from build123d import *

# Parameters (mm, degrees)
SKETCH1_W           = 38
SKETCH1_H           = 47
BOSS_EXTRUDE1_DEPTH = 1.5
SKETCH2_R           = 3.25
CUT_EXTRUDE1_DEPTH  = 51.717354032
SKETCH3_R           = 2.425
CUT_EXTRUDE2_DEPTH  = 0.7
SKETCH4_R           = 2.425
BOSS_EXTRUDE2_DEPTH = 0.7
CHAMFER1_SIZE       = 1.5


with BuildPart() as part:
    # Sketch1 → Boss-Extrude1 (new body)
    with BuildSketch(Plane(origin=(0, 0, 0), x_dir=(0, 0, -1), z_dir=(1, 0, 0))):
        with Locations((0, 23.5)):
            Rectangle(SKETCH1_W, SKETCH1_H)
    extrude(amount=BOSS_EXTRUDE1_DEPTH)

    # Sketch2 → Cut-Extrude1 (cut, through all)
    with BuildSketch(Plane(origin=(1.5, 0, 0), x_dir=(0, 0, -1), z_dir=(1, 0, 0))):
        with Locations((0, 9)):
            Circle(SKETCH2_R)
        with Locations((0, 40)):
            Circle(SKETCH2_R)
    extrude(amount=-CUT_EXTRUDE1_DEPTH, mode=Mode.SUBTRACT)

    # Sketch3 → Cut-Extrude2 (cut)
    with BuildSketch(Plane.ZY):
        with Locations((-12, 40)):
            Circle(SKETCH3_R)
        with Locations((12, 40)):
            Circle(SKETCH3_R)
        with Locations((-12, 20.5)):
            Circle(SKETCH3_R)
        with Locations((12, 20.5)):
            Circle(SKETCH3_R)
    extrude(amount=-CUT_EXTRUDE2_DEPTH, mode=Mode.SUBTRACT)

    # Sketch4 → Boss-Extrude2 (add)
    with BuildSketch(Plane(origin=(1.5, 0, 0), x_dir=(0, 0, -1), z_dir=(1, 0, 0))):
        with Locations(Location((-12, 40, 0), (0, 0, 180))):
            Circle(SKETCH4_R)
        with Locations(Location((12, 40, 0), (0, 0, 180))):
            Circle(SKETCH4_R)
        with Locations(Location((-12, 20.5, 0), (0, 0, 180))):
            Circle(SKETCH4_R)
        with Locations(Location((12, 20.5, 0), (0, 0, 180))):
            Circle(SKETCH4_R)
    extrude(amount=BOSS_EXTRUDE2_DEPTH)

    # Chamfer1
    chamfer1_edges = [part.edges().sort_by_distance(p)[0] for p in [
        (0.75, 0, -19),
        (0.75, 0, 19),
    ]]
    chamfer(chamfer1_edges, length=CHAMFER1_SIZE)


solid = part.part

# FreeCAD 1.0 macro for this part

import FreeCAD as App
import Part
import Sketcher
from FreeCAD import Vector


def edges_at(feature, points):
    """Names of the edges that pass closest to the given points."""
    edges = feature.Shape.Edges
    near = lambda p: min(range(len(edges)), key=lambda i: edges[i].distToShape(Part.Vertex(*p))[0])
    return sorted({f"Edge{near(p) + 1}" for p in points})


def add_polygon(sketch, points):
    """Adds a closed chain of lines whose ends are joined by coincident constraints."""
    first, n = sketch.GeometryCount, len(points)
    for a, b in zip(points, points[1:] + points[:1]):
        sketch.addGeometry(Part.LineSegment(App.Vector(*a, 0), App.Vector(*b, 0)), False)
    for i in range(n):
        sketch.addConstraint(Sketcher.Constraint("Coincident", first + i, 2, first + (i + 1) % n, 1))

doc = App.newDocument("Part")
body = doc.addObject("PartDesign::Body", "Body")

# Sketch on YZ plane
sketch1 = doc.addObject("Sketcher::SketchObject", "Sketch")
body.addObject(sketch1)
sketch1.AttachmentSupport = (doc.YZ_Plane, [""])
sketch1.MapMode = "FlatFace"
add_polygon(sketch1, [(47, 19), (0, 19), (0, -19), (47, -19)])  # lines 0-3
sketch1.addConstraint([
    Sketcher.Constraint("Horizontal", 0),
    Sketcher.Constraint("Vertical", 1),
    Sketcher.Constraint("Horizontal", 2),
    Sketcher.Constraint("Vertical", 3),
    Sketcher.Constraint("Symmetric", 0, 2, 1, 2, -1, 1),
    Sketcher.Constraint("DistanceX", 0, 2, 0, 1, 47.0),
    Sketcher.Constraint("DistanceY", 1, 2, 1, 1, 38.0),
])
pad1 = doc.addObject("PartDesign::Pad", "Pad")
body.addObject(pad1)
pad1.Profile = sketch1
pad1.Length = 1.5

# Sketch on YZ plane
sketch2 = doc.addObject("Sketcher::SketchObject", "Sketch001")
body.addObject(sketch2)
sketch2.AttachmentSupport = (doc.YZ_Plane, [""])
sketch2.MapMode = "FlatFace"
sketch2.AttachmentOffset = App.Placement(Vector(0, 0, 1.5), App.Rotation())
sketch2.addGeometry([
    Part.Circle(Vector(9, 0, 0), Vector(0, 0, 1), 3.2),
    Part.Circle(Vector(40, 0, 0), Vector(0, 0, 1), 3.2),
], False)
sketch2.addConstraint([
    Sketcher.Constraint("Equal", 0, 1),
    Sketcher.Constraint("PointOnObject", 0, 3, -1),
    Sketcher.Constraint("PointOnObject", 1, 3, -1),
    Sketcher.Constraint("Diameter", 0, 6.5),
    Sketcher.Constraint("DistanceX", -1, 1, 0, 3, 9.0),
    Sketcher.Constraint("DistanceX", -1, 1, 1, 3, 40.0),
])
pocket1 = doc.addObject("PartDesign::Pocket", "Pocket")
body.addObject(pocket1)
pocket1.Profile = sketch2
pocket1.Type = "ThroughAll"

# Sketch on YZ plane
sketch3 = doc.addObject("Sketcher::SketchObject", "Sketch002")
body.addObject(sketch3)
sketch3.AttachmentSupport = (doc.YZ_Plane, [""])
sketch3.MapMode = "FlatFace"
sketch3.addGeometry([
    Part.Circle(Vector(40, -12, 0), Vector(0, 0, 1), 2.4),
    Part.Circle(Vector(40, 12, 0), Vector(0, 0, 1), 2.4),
    Part.Circle(Vector(20.5, -12, 0), Vector(0, 0, 1), 2.4),
    Part.Circle(Vector(20.5, 12, 0), Vector(0, 0, 1), 2.4),
], False)
sketch3.addConstraint([
    Sketcher.Constraint("Equal", 0, 1),
    Sketcher.Constraint("Equal", 1, 2),
    Sketcher.Constraint("Equal", 2, 3),
    Sketcher.Constraint("Symmetric", 0, 3, 1, 3, -1),
    Sketcher.Constraint("Symmetric", 2, 3, 3, 3, -1),
    Sketcher.Constraint("Horizontal", 0, 3, 2, 3),
    Sketcher.Constraint("Diameter", 0, 4.85),
    Sketcher.Constraint("DistanceX", -1, 1, 0, 3, 40.0),
    Sketcher.Constraint("DistanceY", 0, 3, -1, 1, 12.0),
    Sketcher.Constraint("DistanceX", -1, 1, 2, 3, 20.5),
])
pocket2 = doc.addObject("PartDesign::Pocket", "Pocket001")
body.addObject(pocket2)
pocket2.Profile = sketch3
pocket2.Length = 0.7
pocket2.Reversed = True

# Sketch on YZ plane
sketch4 = doc.addObject("Sketcher::SketchObject", "Sketch003")
body.addObject(sketch4)
sketch4.AttachmentSupport = (doc.YZ_Plane, [""])
sketch4.MapMode = "FlatFace"
sketch4.AttachmentOffset = App.Placement(Vector(0, 0, 1.5), App.Rotation())
sketch4.addGeometry([
    Part.Circle(Vector(40, 12, 0), Vector(0, 0, 1), 2.4),
    Part.Circle(Vector(40, -12, 0), Vector(0, 0, 1), 2.4),
    Part.Circle(Vector(20.5, 12, 0), Vector(0, 0, 1), 2.4),
    Part.Circle(Vector(20.5, -12, 0), Vector(0, 0, 1), 2.4),
], False)
sketch4.addConstraint([
    Sketcher.Constraint("Equal", 0, 1),
    Sketcher.Constraint("Equal", 1, 2),
    Sketcher.Constraint("Equal", 2, 3),
    Sketcher.Constraint("Symmetric", 0, 3, 1, 3, -1),
    Sketcher.Constraint("Symmetric", 2, 3, 3, 3, -1),
    Sketcher.Constraint("Horizontal", 0, 3, 2, 3),
    Sketcher.Constraint("Diameter", 0, 4.85),
    Sketcher.Constraint("DistanceX", -1, 1, 0, 3, 40.0),
    Sketcher.Constraint("DistanceY", -1, 1, 0, 3, 12.0),
    Sketcher.Constraint("DistanceX", -1, 1, 2, 3, 20.5),
])
pad2 = doc.addObject("PartDesign::Pad", "Pad001")
body.addObject(pad2)
pad2.Profile = sketch4
pad2.Length = 0.7
doc.recompute()

chamfer = doc.addObject("PartDesign::Chamfer", "Chamfer")
body.addObject(chamfer)
chamfer.Base = (pad2, edges_at(pad2, [(0.75, 0, -19), (0.75, 0, 19)]))
chamfer.Size = 1.5

doc.recompute()
